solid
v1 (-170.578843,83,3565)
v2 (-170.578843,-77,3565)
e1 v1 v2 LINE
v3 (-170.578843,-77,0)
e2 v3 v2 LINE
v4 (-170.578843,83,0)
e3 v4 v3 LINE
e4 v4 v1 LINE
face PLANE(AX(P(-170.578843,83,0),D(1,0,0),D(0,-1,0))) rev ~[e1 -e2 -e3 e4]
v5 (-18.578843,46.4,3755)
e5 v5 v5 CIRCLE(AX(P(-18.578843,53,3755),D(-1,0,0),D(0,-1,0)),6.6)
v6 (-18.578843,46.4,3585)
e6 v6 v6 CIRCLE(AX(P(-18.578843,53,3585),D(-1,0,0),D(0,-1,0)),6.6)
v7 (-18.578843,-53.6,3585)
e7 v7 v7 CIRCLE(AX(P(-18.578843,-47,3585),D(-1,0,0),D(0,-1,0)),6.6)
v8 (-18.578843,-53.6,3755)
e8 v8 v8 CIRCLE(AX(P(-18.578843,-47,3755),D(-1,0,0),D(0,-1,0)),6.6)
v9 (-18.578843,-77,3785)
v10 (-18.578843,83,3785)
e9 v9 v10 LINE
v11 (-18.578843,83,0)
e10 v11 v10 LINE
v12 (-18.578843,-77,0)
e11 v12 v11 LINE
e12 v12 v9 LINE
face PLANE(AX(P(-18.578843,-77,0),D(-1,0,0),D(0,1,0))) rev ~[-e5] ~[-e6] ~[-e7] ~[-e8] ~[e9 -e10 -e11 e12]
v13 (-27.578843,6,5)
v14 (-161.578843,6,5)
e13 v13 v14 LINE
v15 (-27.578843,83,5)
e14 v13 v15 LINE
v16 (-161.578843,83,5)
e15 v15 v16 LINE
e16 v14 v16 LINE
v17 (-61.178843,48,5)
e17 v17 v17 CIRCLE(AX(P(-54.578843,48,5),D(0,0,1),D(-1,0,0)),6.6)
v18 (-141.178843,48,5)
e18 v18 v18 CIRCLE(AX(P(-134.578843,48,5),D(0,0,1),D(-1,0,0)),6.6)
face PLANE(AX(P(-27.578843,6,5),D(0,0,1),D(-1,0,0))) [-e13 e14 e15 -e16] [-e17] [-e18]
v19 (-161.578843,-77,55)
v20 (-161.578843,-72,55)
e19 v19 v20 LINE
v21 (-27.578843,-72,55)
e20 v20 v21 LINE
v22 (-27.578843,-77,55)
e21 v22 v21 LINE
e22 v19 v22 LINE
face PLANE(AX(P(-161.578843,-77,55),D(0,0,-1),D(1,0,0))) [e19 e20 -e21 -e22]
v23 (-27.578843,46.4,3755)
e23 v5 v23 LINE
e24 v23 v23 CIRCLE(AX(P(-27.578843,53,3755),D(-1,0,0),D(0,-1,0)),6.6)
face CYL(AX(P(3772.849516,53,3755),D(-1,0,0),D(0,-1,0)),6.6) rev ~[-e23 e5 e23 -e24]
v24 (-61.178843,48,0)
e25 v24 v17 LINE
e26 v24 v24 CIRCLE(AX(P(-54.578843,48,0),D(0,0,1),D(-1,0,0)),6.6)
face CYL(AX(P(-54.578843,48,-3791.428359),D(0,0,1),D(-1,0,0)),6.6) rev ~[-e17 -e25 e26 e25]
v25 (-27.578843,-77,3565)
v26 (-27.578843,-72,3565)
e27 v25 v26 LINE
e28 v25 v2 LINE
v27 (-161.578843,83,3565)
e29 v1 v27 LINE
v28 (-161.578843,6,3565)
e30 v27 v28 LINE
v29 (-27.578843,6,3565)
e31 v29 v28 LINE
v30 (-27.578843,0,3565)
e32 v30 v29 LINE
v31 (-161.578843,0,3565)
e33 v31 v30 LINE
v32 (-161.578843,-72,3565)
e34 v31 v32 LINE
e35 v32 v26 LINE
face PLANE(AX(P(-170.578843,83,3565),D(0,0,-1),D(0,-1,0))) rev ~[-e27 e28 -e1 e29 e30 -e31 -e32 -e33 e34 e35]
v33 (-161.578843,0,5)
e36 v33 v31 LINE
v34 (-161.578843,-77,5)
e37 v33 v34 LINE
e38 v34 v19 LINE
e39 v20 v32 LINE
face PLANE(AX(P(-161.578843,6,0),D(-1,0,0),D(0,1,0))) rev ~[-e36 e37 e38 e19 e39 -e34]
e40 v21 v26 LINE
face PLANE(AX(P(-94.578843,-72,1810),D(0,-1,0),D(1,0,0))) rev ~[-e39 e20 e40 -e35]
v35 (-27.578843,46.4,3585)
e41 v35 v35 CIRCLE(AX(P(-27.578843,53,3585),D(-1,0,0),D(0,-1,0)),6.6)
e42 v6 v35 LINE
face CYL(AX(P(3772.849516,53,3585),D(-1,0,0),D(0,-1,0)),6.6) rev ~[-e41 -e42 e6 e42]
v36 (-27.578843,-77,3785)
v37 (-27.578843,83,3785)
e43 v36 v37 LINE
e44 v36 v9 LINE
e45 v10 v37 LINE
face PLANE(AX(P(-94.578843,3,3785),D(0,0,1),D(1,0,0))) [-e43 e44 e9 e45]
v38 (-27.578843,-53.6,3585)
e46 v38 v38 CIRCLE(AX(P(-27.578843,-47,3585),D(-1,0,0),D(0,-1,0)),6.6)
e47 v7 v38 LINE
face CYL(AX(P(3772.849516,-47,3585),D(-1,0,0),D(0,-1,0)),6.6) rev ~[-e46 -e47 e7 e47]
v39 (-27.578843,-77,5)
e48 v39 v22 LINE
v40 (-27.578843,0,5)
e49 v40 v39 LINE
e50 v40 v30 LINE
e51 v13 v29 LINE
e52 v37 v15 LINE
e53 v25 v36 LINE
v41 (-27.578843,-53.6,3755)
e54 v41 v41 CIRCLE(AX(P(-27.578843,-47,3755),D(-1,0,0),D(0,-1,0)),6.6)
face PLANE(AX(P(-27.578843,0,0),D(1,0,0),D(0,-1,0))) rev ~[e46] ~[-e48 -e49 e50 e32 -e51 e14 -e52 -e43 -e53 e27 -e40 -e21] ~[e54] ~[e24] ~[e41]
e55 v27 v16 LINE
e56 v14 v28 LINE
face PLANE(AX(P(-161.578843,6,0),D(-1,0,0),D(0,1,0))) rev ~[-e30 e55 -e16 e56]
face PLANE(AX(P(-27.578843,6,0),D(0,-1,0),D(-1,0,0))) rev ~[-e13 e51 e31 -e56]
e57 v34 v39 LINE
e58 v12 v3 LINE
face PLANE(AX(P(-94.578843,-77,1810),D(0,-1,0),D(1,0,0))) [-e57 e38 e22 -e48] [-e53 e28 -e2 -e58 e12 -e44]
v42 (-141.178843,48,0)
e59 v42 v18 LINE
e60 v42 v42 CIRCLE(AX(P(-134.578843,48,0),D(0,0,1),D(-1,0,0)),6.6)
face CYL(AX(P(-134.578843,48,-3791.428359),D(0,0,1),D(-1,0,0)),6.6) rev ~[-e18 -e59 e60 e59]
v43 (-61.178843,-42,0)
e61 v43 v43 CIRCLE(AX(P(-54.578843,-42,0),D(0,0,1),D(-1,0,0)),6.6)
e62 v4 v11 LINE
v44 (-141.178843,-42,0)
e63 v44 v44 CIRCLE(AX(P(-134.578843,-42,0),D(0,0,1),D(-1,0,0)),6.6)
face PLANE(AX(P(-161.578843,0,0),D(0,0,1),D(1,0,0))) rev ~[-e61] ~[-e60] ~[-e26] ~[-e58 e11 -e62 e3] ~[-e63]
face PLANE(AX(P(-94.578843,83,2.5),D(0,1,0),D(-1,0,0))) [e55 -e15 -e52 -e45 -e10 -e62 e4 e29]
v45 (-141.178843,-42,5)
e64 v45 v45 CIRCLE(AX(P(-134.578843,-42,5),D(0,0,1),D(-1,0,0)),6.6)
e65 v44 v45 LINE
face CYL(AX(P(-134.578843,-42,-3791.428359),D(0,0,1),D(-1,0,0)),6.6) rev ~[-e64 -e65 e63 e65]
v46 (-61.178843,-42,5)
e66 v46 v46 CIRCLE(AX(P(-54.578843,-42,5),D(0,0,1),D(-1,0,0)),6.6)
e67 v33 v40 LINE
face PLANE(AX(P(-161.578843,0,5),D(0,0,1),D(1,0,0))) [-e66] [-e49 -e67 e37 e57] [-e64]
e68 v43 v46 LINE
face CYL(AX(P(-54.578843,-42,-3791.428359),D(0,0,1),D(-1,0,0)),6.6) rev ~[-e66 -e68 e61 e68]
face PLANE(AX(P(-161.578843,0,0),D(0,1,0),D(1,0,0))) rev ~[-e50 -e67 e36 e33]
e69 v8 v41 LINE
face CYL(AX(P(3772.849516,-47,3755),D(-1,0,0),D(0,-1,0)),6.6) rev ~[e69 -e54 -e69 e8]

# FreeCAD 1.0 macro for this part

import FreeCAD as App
import Part
import Sketcher

V = App.Vector
Q = App.Units.Quantity

doc = App.newDocument("Part")
body = doc.addObject("PartDesign::Body", "Body")

# Sketch on XY plane
sketch1 = body.newObject("Sketcher::SketchObject", "Sketch")
sketch1.AttachmentSupport = (doc.getObject("XY_Plane"), [""])
sketch1.MapMode = "FlatFace"
sketch1.addGeometry([
    Part.LineSegment(V(-171, 83, 0), V(-171, -77, 0)),  # 0
    Part.LineSegment(V(-171, -77, 0), V(-162, -77, 0)),  # 1
    Part.LineSegment(V(-162, -77, 0), V(-162, 0, 0)),  # 2
    Part.LineSegment(V(-162, 0, 0), V(-28, 0, 0)),  # 3
    Part.LineSegment(V(-28, 0, 0), V(-28, -77, 0)),  # 4
    Part.LineSegment(V(-28, -77, 0), V(-19, -77, 0)),  # 5
    Part.LineSegment(V(-19, -77, 0), V(-19, 83, 0)),  # 6
    Part.LineSegment(V(-19, 83, 0), V(-28, 83, 0)),  # 7
    Part.LineSegment(V(-28, 83, 0), V(-28, 6, 0)),  # 8
    Part.LineSegment(V(-28, 6, 0), V(-162, 6, 0)),  # 9
    Part.LineSegment(V(-162, 6, 0), V(-162, 83, 0)),  # 10
    Part.LineSegment(V(-162, 83, 0), V(-171, 83, 0)),  # 11
], False)
sketch1.addConstraint([
    Sketcher.Constraint("Coincident", 0, 2, 1, 1),
    Sketcher.Constraint("Coincident", 1, 2, 2, 1),
    Sketcher.Constraint("Coincident", 2, 2, 3, 1),
    Sketcher.Constraint("Coincident", 3, 2, 4, 1),
    Sketcher.Constraint("Coincident", 4, 2, 5, 1),
    Sketcher.Constraint("Coincident", 5, 2, 6, 1),
    Sketcher.Constraint("Coincident", 6, 2, 7, 1),
    Sketcher.Constraint("Coincident", 7, 2, 8, 1),
    Sketcher.Constraint("Coincident", 8, 2, 9, 1),
    Sketcher.Constraint("Coincident", 9, 2, 10, 1),
    Sketcher.Constraint("Coincident", 10, 2, 11, 1),
    Sketcher.Constraint("Coincident", 11, 2, 0, 1),
    Sketcher.Constraint("Vertical", 0),
    Sketcher.Constraint("Horizontal", 1),
    Sketcher.Constraint("Vertical", 2),
    Sketcher.Constraint("Horizontal", 3),
    Sketcher.Constraint("Vertical", 4),
    Sketcher.Constraint("Horizontal", 5),
    Sketcher.Constraint("Vertical", 6),
    Sketcher.Constraint("Horizontal", 7),
    Sketcher.Constraint("Vertical", 8),
    Sketcher.Constraint("Horizontal", 9),
    Sketcher.Constraint("Vertical", 10),
    Sketcher.Constraint("Horizontal", 11),
    Sketcher.Constraint("PointOnObject", 2, 2, -1),
    Sketcher.Constraint("Horizontal", 1, 2, 4, 2),
    Sketcher.Constraint("Horizontal", 7, 2, 10, 2),
    Sketcher.Constraint("Vertical", 4, 2, 7, 2),
    Sketcher.Constraint("Vertical", 2, 2, 9, 2),
    Sketcher.Constraint("Equal", 1, 5),
    Sketcher.Constraint("Equal", 4, 8),
    Sketcher.Constraint("DistanceX", 1, 1, 1, 2, Q("9 mm")),
    Sketcher.Constraint("DistanceX", 3, 1, 3, 2, Q("134 mm")),
    Sketcher.Constraint("DistanceY", 0, 2, 0, 1, Q("160 mm")),
    Sketcher.Constraint("DistanceY", 2, 1, 2, 2, Q("77 mm")),
    Sketcher.Constraint("DistanceX", 0, 2, -1, 1, Q("170.578843 mm")),
])
pad1 = body.newObject("PartDesign::Pad", "Pad")
pad1.Profile = sketch1
pad1.Length = 3785

# Sketch on XZ plane
sketch2 = body.newObject("Sketcher::SketchObject", "Sketch001")
sketch2.AttachmentSupport = (doc.getObject("XZ_Plane"), [""])
sketch2.MapMode = "FlatFace"
sketch2.addGeometry([
    Part.LineSegment(V(-162, 3785, 0), V(-162, 3565, 0)),
    Part.LineSegment(V(-162, 3565, 0), V(-28, 3565, 0)),
    Part.LineSegment(V(-28, 3565, 0), V(-28, 3785, 0)),
    Part.LineSegment(V(-28, 3785, 0), V(-162, 3785, 0)),
], False)
sketch2.addConstraint([
    Sketcher.Constraint("Coincident", 0, 2, 1, 1),
    Sketcher.Constraint("Coincident", 1, 2, 2, 1),
    Sketcher.Constraint("Coincident", 2, 2, 3, 1),
    Sketcher.Constraint("Coincident", 3, 2, 0, 1),
    Sketcher.Constraint("Vertical", 0),
    Sketcher.Constraint("Horizontal", 1),
    Sketcher.Constraint("Vertical", 2),
    Sketcher.Constraint("Horizontal", 3),
    Sketcher.Constraint("DistanceX", 1, 1, 1, 2, Q("134 mm")),
    Sketcher.Constraint("DistanceY", 0, 2, 0, 1, Q("220 mm")),
    Sketcher.Constraint("DistanceY", -1, 1, 0, 2, Q("3565 mm")),
    Sketcher.Constraint("DistanceX", 0, 2, -1, 1, Q("161.578843 mm")),
])
pocket1 = body.newObject("PartDesign::Pocket", "Pocket")
pocket1.Profile = sketch2
pocket1.Length = 100

# Sketch on YZ plane
sketch3 = body.newObject("Sketcher::SketchObject", "Sketch002")
sketch3.AttachmentSupport = (doc.getObject("YZ_Plane"), [""])
sketch3.MapMode = "FlatFace"
sketch3.AttachmentOffset = App.Placement(V(0, 0, -170.578843), App.Rotation())
sketch3.addGeometry([
    Part.LineSegment(V(83, 3785, 0), V(83, 3565, 0)),
    Part.LineSegment(V(83, 3565, 0), V(-77, 3565, 0)),
    Part.LineSegment(V(-77, 3565, 0), V(-77, 3785, 0)),
    Part.LineSegment(V(-77, 3785, 0), V(83, 3785, 0)),
], False)
sketch3.addConstraint([
    Sketcher.Constraint("Coincident", 0, 2, 1, 1),
    Sketcher.Constraint("Coincident", 1, 2, 2, 1),
    Sketcher.Constraint("Coincident", 2, 2, 3, 1),
    Sketcher.Constraint("Coincident", 3, 2, 0, 1),
    Sketcher.Constraint("Vertical", 0),
    Sketcher.Constraint("Horizontal", 1),
    Sketcher.Constraint("Vertical", 2),
    Sketcher.Constraint("Horizontal", 3),
    Sketcher.Constraint("DistanceX", 1, 2, 1, 1, Q("160 mm")),
    Sketcher.Constraint("DistanceY", 0, 2, 0, 1, Q("220 mm")),
    Sketcher.Constraint("DistanceX", -1, 1, 0, 2, Q("83 mm")),
    Sketcher.Constraint("DistanceY", -1, 1, 0, 2, Q("3565 mm")),
])
pocket2 = body.newObject("PartDesign::Pocket", "Pocket001")
pocket2.Profile = sketch3
pocket2.Length = 25
pocket2.Reversed = True

# Sketch on YZ plane
sketch4 = body.newObject("Sketcher::SketchObject", "Sketch003")
sketch4.AttachmentSupport = (doc.getObject("YZ_Plane"), [""])
sketch4.MapMode = "FlatFace"
sketch4.AttachmentOffset = App.Placement(V(0, 0, -18.578843), App.Rotation())
sketch4.addGeometry([
    Part.Circle(V(-47, 3755, 0), V(0, 0, 1), 7),
    Part.Circle(V(53, 3755, 0), V(0, 0, 1), 7),
    Part.Circle(V(-47, 3585, 0), V(0, 0, 1), 7),
    Part.Circle(V(53, 3585, 0), V(0, 0, 1), 7),
], False)
sketch4.addConstraint([
    Sketcher.Constraint("Equal", 0, 1),
    Sketcher.Constraint("Equal", 1, 2),
    Sketcher.Constraint("Equal", 2, 3),
    Sketcher.Constraint("Horizontal", 0, 3, 1, 3),
    Sketcher.Constraint("Horizontal", 2, 3, 3, 3),
    Sketcher.Constraint("Vertical", 0, 3, 2, 3),
    Sketcher.Constraint("Vertical", 1, 3, 3, 3),
    Sketcher.Constraint("Diameter", 0, Q("13.2 mm")),
    Sketcher.Constraint("DistanceX", 0, 3, -1, 1, Q("47 mm")),
    Sketcher.Constraint("DistanceY", -1, 1, 0, 3, Q("3755 mm")),
    Sketcher.Constraint("DistanceX", -1, 1, 1, 3, Q("53 mm")),
    Sketcher.Constraint("DistanceY", -1, 1, 2, 3, Q("3585 mm")),
])
doc.recompute()
hole = body.newObject("PartDesign::Hole", "Hole")
hole.Profile = sketch4
hole.ThreadType = "None"
hole.Diameter = 13.2
hole.DepthType = "ThroughAll"

# Sketch on XZ plane
sketch5 = body.newObject("Sketcher::SketchObject", "Sketch004")
sketch5.AttachmentSupport = (doc.getObject("XZ_Plane"), [""])
sketch5.MapMode = "FlatFace"
sketch5.AttachmentOffset = App.Placement(V(0, 0, -6), App.Rotation())
sketch5.addGeometry([
    Part.LineSegment(V(-28, 5, 0), V(-28, 0, 0)),
    Part.LineSegment(V(-28, 0, 0), V(-162, 0, 0)),
    Part.LineSegment(V(-162, 0, 0), V(-162, 5, 0)),
    Part.LineSegment(V(-162, 5, 0), V(-28, 5, 0)),
], False)
sketch5.addConstraint([
    Sketcher.Constraint("Coincident", 0, 2, 1, 1),
    Sketcher.Constraint("Coincident", 1, 2, 2, 1),
    Sketcher.Constraint("Coincident", 2, 2, 3, 1),
    Sketcher.Constraint("Coincident", 3, 2, 0, 1),
    Sketcher.Constraint("Vertical", 0),
    Sketcher.Constraint("Horizontal", 1),
    Sketcher.Constraint("Vertical", 2),
    Sketcher.Constraint("Horizontal", 3),
    Sketcher.Constraint("PointOnObject", 0, 2, -1),
    Sketcher.Constraint("DistanceX", 1, 2, 1, 1, Q("134 mm")),
    Sketcher.Constraint("DistanceY", 0, 2, 0, 1, Q("5 mm")),
    Sketcher.Constraint("DistanceX", 0, 2, -1, 1, Q("27.578843 mm")),
])
pad2 = body.newObject("PartDesign::Pad", "Pad001")
pad2.Profile = sketch5
pad2.Length = 77
pad2.Reversed = True

# Sketch on XZ plane
sketch6 = body.newObject("Sketcher::SketchObject", "Sketch005")
sketch6.AttachmentSupport = (doc.getObject("XZ_Plane"), [""])
sketch6.MapMode = "FlatFace"
sketch6.addGeometry([
    Part.LineSegment(V(-162, 5, 0), V(-162, 0, 0)),
    Part.LineSegment(V(-162, 0, 0), V(-28, 0, 0)),
    Part.LineSegment(V(-28, 0, 0), V(-28, 5, 0)),
    Part.LineSegment(V(-28, 5, 0), V(-162, 5, 0)),
], False)
sketch6.addConstraint([
    Sketcher.Constraint("Coincident", 0, 2, 1, 1),
    Sketcher.Constraint("Coincident", 1, 2, 2, 1),
    Sketcher.Constraint("Coincident", 2, 2, 3, 1),
    Sketcher.Constraint("Coincident", 3, 2, 0, 1),
    Sketcher.Constraint("Vertical", 0),
    Sketcher.Constraint("Horizontal", 1),
    Sketcher.Constraint("Vertical", 2),
    Sketcher.Constraint("Horizontal", 3),
    Sketcher.Constraint("PointOnObject", 0, 2, -1),
    Sketcher.Constraint("DistanceX", 1, 1, 1, 2, Q("134 mm")),
    Sketcher.Constraint("DistanceY", 0, 2, 0, 1, Q("5 mm")),
    Sketcher.Constraint("DistanceX", 0, 2, -1, 1, Q("161.578843 mm")),
])
pad3 = body.newObject("PartDesign::Pad", "Pad002")
pad3.Profile = sketch6
pad3.Length = 77

# Sketch on XY plane
sketch7 = body.newObject("Sketcher::SketchObject", "Sketch006")
sketch7.AttachmentSupport = (doc.getObject("XY_Plane"), [""])
sketch7.MapMode = "FlatFace"
sketch7.addGeometry([
    Part.Circle(V(-55, 48, 0), V(0, 0, 1), 7),
    Part.Circle(V(-55, -42, 0), V(0, 0, 1), 7),
    Part.Circle(V(-135, -42, 0), V(0, 0, 1), 7),
    Part.Circle(V(-135, 48, 0), V(0, 0, 1), 7),
], False)
sketch7.addConstraint([
    Sketcher.Constraint("Equal", 0, 1),
    Sketcher.Constraint("Equal", 1, 2),
    Sketcher.Constraint("Equal", 2, 3),
    Sketcher.Constraint("Horizontal", 1, 3, 2, 3),
    Sketcher.Constraint("Horizontal", 0, 3, 3, 3),
    Sketcher.Constraint("Vertical", 0, 3, 1, 3),
    Sketcher.Constraint("Vertical", 2, 3, 3, 3),
    Sketcher.Constraint("Diameter", 0, Q("13.2 mm")),
    Sketcher.Constraint("DistanceY", -1, 1, 0, 3, Q("48 mm")),
    Sketcher.Constraint("DistanceY", 1, 3, -1, 1, Q("42 mm")),
    Sketcher.Constraint("DistanceX", 2, 3, 1, 3, Q("80 mm")),
    Sketcher.Constraint("DistanceX", 0, 3, -1, 1, Q("54.578843 mm")),
])
doc.recompute()
hole2 = body.newObject("PartDesign::Hole", "Hole001")
hole2.Profile = sketch7
hole2.ThreadType = "None"
hole2.Diameter = 13.2
hole2.DepthType = "ThroughAll"
hole2.Reversed = True

# Sketch on XZ plane
sketch8 = body.newObject("Sketcher::SketchObject", "Sketch007")
sketch8.AttachmentSupport = (doc.getObject("XZ_Plane"), [""])
sketch8.MapMode = "FlatFace"
sketch8.AttachmentOffset = App.Placement(V(0, 0, 77), App.Rotation())
sketch8.addGeometry([
    Part.LineSegment(V(-162, 3565, 0), V(-162, 55, 0)),
    Part.LineSegment(V(-162, 55, 0), V(-28, 55, 0)),
    Part.LineSegment(V(-28, 55, 0), V(-28, 3565, 0)),
    Part.LineSegment(V(-28, 3565, 0), V(-162, 3565, 0)),
], False)
sketch8.addConstraint([
    Sketcher.Constraint("Coincident", 0, 2, 1, 1),
    Sketcher.Constraint("Coincident", 1, 2, 2, 1),
    Sketcher.Constraint("Coincident", 2, 2, 3, 1),
    Sketcher.Constraint("Coincident", 3, 2, 0, 1),
    Sketcher.Constraint("Vertical", 0),
    Sketcher.Constraint("Horizontal", 1),
    Sketcher.Constraint("Vertical", 2),
    Sketcher.Constraint("Horizontal", 3),
    Sketcher.Constraint("DistanceX", 1, 1, 1, 2, Q("134 mm")),
    Sketcher.Constraint("DistanceY", 0, 2, 0, 1, Q("3510 mm")),
    Sketcher.Constraint("DistanceY", -1, 1, 0, 2, Q("55 mm")),
    Sketcher.Constraint("DistanceX", 0, 2, -1, 1, Q("161.578843 mm")),
])
pad4 = body.newObject("PartDesign::Pad", "Pad003")
pad4.Profile = sketch8
pad4.Length = 5
pad4.Reversed = True

doc.recompute()
